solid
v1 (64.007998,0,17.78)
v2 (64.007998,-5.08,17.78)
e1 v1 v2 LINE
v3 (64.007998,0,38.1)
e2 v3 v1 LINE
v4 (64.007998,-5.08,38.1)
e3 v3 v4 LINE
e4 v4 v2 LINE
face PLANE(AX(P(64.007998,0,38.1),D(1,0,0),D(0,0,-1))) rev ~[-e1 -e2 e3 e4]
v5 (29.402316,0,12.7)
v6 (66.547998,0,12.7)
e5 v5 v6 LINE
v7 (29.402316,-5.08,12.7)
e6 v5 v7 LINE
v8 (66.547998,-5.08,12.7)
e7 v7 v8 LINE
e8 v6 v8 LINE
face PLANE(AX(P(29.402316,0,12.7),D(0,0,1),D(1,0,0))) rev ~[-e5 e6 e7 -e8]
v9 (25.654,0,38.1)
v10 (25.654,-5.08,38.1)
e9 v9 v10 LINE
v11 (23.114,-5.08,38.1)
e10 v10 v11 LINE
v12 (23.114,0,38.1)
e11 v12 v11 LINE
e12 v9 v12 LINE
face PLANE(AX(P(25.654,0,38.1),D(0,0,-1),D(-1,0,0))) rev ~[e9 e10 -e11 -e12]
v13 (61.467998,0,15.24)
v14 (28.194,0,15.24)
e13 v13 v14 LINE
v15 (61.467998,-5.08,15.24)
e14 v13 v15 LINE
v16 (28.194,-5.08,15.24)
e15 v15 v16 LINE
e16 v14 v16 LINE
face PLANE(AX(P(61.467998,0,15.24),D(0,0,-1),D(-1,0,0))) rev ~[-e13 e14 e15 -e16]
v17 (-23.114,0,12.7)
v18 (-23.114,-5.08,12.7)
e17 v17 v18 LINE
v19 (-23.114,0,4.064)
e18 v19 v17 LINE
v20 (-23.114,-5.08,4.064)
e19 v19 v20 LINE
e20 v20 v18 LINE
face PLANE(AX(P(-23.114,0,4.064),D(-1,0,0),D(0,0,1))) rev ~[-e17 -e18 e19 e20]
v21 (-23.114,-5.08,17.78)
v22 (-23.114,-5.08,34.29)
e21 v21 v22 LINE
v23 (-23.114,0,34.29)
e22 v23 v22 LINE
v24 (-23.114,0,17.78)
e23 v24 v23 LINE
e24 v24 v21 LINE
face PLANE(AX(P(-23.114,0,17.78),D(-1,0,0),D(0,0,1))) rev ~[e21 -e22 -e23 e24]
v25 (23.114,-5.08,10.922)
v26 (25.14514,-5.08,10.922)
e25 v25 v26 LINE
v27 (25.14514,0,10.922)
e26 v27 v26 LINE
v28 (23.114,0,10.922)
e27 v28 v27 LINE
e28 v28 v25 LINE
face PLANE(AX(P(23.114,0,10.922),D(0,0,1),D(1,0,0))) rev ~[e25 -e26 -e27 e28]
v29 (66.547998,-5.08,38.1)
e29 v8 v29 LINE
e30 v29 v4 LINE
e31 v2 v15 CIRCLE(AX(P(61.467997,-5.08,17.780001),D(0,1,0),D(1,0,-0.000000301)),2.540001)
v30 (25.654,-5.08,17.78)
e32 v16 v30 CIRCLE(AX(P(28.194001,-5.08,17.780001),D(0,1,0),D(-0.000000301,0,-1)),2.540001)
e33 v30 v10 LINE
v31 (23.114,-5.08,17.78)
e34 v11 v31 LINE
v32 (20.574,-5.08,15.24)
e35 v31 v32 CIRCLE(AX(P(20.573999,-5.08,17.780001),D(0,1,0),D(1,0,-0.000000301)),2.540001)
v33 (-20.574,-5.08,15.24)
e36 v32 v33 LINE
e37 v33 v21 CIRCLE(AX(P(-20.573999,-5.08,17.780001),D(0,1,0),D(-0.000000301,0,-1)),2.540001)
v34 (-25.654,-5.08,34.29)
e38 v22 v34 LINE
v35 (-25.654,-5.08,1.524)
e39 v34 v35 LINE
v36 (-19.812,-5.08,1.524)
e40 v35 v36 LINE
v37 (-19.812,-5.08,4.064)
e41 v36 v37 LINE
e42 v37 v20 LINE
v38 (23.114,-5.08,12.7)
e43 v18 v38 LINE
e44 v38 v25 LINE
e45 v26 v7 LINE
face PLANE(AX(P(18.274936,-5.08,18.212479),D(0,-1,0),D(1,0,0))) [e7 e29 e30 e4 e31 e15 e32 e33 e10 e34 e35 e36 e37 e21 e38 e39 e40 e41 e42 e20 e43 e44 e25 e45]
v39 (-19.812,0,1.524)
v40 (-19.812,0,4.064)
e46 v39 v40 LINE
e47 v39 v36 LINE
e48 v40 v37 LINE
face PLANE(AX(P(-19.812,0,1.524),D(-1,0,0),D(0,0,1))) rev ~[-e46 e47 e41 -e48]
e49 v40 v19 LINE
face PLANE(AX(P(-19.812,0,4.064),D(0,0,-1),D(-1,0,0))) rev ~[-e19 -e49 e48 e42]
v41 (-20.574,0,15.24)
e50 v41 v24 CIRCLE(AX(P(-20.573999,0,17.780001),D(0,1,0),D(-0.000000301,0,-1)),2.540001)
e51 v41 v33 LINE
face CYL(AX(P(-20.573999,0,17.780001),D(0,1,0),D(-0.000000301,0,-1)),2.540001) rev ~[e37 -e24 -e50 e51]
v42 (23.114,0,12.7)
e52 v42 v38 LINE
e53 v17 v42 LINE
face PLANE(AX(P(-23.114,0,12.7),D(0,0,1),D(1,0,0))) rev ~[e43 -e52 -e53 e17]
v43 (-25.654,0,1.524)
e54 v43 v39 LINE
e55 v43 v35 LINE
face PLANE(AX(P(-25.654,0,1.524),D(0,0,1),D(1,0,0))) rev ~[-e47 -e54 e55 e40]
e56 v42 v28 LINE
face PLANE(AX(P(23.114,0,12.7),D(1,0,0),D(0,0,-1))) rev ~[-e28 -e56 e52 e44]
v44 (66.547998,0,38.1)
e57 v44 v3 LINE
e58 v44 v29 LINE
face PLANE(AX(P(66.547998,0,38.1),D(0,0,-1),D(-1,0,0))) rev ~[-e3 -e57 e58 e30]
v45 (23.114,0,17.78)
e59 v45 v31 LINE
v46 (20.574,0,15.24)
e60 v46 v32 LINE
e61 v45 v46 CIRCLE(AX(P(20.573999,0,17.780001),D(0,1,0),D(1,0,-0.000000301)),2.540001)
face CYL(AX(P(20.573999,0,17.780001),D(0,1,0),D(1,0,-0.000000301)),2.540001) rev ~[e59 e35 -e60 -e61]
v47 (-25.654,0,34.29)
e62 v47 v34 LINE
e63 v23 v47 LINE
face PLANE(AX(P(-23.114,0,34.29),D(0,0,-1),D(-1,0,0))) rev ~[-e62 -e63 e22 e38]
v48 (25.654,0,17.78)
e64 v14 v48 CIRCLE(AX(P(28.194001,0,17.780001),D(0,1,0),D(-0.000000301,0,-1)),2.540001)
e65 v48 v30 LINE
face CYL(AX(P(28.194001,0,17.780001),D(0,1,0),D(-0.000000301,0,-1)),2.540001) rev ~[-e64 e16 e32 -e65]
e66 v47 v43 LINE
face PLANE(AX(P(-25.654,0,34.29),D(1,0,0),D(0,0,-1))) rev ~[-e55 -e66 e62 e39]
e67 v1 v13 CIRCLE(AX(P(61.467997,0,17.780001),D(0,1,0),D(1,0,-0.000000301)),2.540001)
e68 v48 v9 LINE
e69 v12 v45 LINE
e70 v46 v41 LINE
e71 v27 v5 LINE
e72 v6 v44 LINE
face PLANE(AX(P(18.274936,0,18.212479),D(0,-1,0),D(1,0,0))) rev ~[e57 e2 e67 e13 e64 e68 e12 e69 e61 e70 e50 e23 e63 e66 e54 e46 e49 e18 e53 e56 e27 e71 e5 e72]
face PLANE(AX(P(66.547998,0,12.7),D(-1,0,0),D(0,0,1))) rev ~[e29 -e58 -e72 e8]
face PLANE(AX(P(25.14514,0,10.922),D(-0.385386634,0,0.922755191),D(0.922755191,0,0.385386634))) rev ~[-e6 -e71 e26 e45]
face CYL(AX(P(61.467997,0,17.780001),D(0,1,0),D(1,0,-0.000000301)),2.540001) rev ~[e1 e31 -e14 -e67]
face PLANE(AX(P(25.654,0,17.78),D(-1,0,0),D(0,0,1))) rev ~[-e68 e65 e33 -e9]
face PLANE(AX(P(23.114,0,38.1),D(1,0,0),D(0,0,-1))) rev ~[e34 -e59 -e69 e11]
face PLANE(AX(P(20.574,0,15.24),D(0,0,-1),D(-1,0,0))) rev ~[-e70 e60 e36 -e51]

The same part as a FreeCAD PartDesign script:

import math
import FreeCAD as App
import Part
import Sketcher
Q = App.Units.Quantity

doc = App.newDocument("Part")
body = doc.addObject("PartDesign::Body", "Body")

sketch1 = doc.addObject("Sketcher::SketchObject", "Sketch")
body.addObject(sketch1)
sketch1.AttachmentSupport = (doc.XZ_Plane, [""])
sketch1.MapMode = "FlatFace"
sketch1.addGeometry([
    Part.LineSegment(App.Vector(-23.1, 4.1, 0), App.Vector(-23.1, 12.7, 0)),
    Part.LineSegment(App.Vector(-23.1, 12.7, 0), App.Vector(23.1, 12.7, 0)),
    Part.LineSegment(App.Vector(23.1, 12.7, 0), App.Vector(23.1, 10.9, 0)),
    Part.LineSegment(App.Vector(23.1, 10.9, 0), App.Vector(25.1, 10.9, 0)),
    Part.LineSegment(App.Vector(25.1, 10.9, 0), App.Vector(29.4, 12.7, 0)),
    Part.LineSegment(App.Vector(29.4, 12.7, 0), App.Vector(66.5, 12.7, 0)),
    Part.LineSegment(App.Vector(66.5, 12.7, 0), App.Vector(66.5, 38.1, 0)),
    Part.LineSegment(App.Vector(66.5, 38.1, 0), App.Vector(64, 38.1, 0)),
    Part.LineSegment(App.Vector(64, 38.1, 0), App.Vector(64, 17.8, 0)),
    Part.ArcOfCircle(Part.Circle(App.Vector(61.5, 17.8, 0), App.Vector(0, 0, 1), 2.5), math.radians(-90), math.radians(0)),
    Part.LineSegment(App.Vector(61.5, 15.2, 0), App.Vector(28.2, 15.2, 0)),
    Part.ArcOfCircle(Part.Circle(App.Vector(28.2, 17.8, 0), App.Vector(0, 0, 1), 2.5), math.radians(-180), math.radians(-90)),
    Part.LineSegment(App.Vector(25.7, 17.8, 0), App.Vector(25.7, 38.1, 0)),
    Part.LineSegment(App.Vector(25.7, 38.1, 0), App.Vector(23.1, 38.1, 0)),
    Part.LineSegment(App.Vector(23.1, 38.1, 0), App.Vector(23.1, 17.8, 0)),
    Part.ArcOfCircle(Part.Circle(App.Vector(20.6, 17.8, 0), App.Vector(0, 0, 1), 2.5), math.radians(-90), math.radians(0)),
    Part.LineSegment(App.Vector(20.6, 15.2, 0), App.Vector(-20.6, 15.2, 0)),
    Part.ArcOfCircle(Part.Circle(App.Vector(-20.6, 17.8, 0), App.Vector(0, 0, 1), 2.5), math.radians(-180), math.radians(-90)),
    Part.LineSegment(App.Vector(-23.1, 17.8, 0), App.Vector(-23.1, 34.3, 0)),
    Part.LineSegment(App.Vector(-23.1, 34.3, 0), App.Vector(-25.7, 34.3, 0)),
    Part.LineSegment(App.Vector(-25.7, 34.3, 0), App.Vector(-25.7, 1.5, 0)),
    Part.LineSegment(App.Vector(-25.7, 1.5, 0), App.Vector(-19.8, 1.5, 0)),
    Part.LineSegment(App.Vector(-19.8, 1.5, 0), App.Vector(-19.8, 4.1, 0)),
    Part.LineSegment(App.Vector(-19.8, 4.1, 0), App.Vector(-23.1, 4.1, 0)),
], False)
sketch1.addConstraint([
    Sketcher.Constraint("Coincident", 0, 2, 1, 1),
    Sketcher.Constraint("Coincident", 1, 2, 2, 1),
    Sketcher.Constraint("Coincident", 2, 2, 3, 1),
    Sketcher.Constraint("Coincident", 3, 2, 4, 1),
    Sketcher.Constraint("Coincident", 4, 2, 5, 1),
    Sketcher.Constraint("Coincident", 5, 2, 6, 1),
    Sketcher.Constraint("Coincident", 6, 2, 7, 1),
    Sketcher.Constraint("Coincident", 7, 2, 8, 1),
    Sketcher.Constraint("Tangent", 8, 2, 9, 2),
    Sketcher.Constraint("Tangent", 9, 1, 10, 1),
    Sketcher.Constraint("Tangent", 10, 2, 11, 2),
    Sketcher.Constraint("Tangent", 11, 1, 12, 1),
    Sketcher.Constraint("Coincident", 12, 2, 13, 1),
    Sketcher.Constraint("Coincident", 13, 2, 14, 1),
    Sketcher.Constraint("Tangent", 14, 2, 15, 2),
    Sketcher.Constraint("Tangent", 15, 1, 16, 1),
    Sketcher.Constraint("Tangent", 16, 2, 17, 2),
    Sketcher.Constraint("Tangent", 17, 1, 18, 1),
    Sketcher.Constraint("Coincident", 18, 2, 19, 1),
    Sketcher.Constraint("Coincident", 19, 2, 20, 1),
    Sketcher.Constraint("Coincident", 20, 2, 21, 1),
    Sketcher.Constraint("Coincident", 21, 2, 22, 1),
    Sketcher.Constraint("Coincident", 22, 2, 23, 1),
    Sketcher.Constraint("Coincident", 23, 2, 0, 1),
    Sketcher.Constraint("Vertical", 0),
    Sketcher.Constraint("Horizontal", 1),
    Sketcher.Constraint("Vertical", 2),
    Sketcher.Constraint("Horizontal", 3),
    Sketcher.Constraint("Horizontal", 5),
    Sketcher.Constraint("Vertical", 6),
    Sketcher.Constraint("Horizontal", 7),
    Sketcher.Constraint("Vertical", 8),
    Sketcher.Constraint("Horizontal", 10),
    Sketcher.Constraint("Vertical", 12),
    Sketcher.Constraint("Horizontal", 13),
    Sketcher.Constraint("Vertical", 14),
    Sketcher.Constraint("Horizontal", 16),
    Sketcher.Constraint("Vertical", 18),
    Sketcher.Constraint("Horizontal", 19),
    Sketcher.Constraint("Vertical", 20),
    Sketcher.Constraint("Horizontal", 21),
    Sketcher.Constraint("Vertical", 22),
    Sketcher.Constraint("Horizontal", 23),
    Sketcher.Constraint("Equal", 9, 11),
    Sketcher.Constraint("Equal", 11, 15),
    Sketcher.Constraint("Equal", 15, 17),
    Sketcher.Constraint("Horizontal", 11, 3, 15, 3),
    Sketcher.Constraint("Horizontal", 1, 2, 4, 2),
    Sketcher.Constraint("Horizontal", 7, 2, 12, 2),
    Sketcher.Constraint("Vertical", 2, 2, 13, 2),
    Sketcher.Constraint("Vertical", 0, 2, 17, 1),
    Sketcher.Constraint("Equal", 7, 13),
    Sketcher.Constraint("Equal", 13, 19),
    Sketcher.Constraint("Equal", 19, 22),
    Sketcher.Constraint("Radius", 9, Q("0.1 in")),
    Sketcher.Constraint("DistanceY", 6, 1, 6, 2, Q("1 in")),
    Sketcher.Constraint("DistanceX", 7, 2, 7, 1, Q("0.1 in")),
    Sketcher.Constraint("DistanceY", 8, 2, 8, 1, Q("0.8 in")),
    Sketcher.Constraint("DistanceX", 1, 1, 1, 2, Q("1.82 in")),
    Sketcher.Constraint("DistanceX", 10, 2, 10, 1, Q("1.3099999 in")),
    Sketcher.Constraint("DistanceX", 21, 1, 21, 2, Q("0.23 in")),
    Sketcher.Constraint("DistanceY", 0, 1, 0, 2, Q("0.34 in")),
    Sketcher.Constraint("DistanceY", 2, 2, 2, 1, Q("0.07 in")),
    Sketcher.Constraint("DistanceY", 18, 1, 18, 2, Q("0.65 in")),
    Sketcher.Constraint("DistanceY", -1, 1, 9, 3, Q("0.7 in")),
    Sketcher.Constraint("DistanceX", -1, 1, 9, 3, Q("2.4199999 in")),
    Sketcher.Constraint("DistanceX", 3, 1, 3, 2, Q("2.03114 mm")),
    Sketcher.Constraint("Distance", 4, Q("4.613549 mm")),
])
pad1 = doc.addObject("PartDesign::Pad", "Pad")
body.addObject(pad1)
pad1.Profile = sketch1
pad1.Length = Q("0.2 in")

doc.recompute()
